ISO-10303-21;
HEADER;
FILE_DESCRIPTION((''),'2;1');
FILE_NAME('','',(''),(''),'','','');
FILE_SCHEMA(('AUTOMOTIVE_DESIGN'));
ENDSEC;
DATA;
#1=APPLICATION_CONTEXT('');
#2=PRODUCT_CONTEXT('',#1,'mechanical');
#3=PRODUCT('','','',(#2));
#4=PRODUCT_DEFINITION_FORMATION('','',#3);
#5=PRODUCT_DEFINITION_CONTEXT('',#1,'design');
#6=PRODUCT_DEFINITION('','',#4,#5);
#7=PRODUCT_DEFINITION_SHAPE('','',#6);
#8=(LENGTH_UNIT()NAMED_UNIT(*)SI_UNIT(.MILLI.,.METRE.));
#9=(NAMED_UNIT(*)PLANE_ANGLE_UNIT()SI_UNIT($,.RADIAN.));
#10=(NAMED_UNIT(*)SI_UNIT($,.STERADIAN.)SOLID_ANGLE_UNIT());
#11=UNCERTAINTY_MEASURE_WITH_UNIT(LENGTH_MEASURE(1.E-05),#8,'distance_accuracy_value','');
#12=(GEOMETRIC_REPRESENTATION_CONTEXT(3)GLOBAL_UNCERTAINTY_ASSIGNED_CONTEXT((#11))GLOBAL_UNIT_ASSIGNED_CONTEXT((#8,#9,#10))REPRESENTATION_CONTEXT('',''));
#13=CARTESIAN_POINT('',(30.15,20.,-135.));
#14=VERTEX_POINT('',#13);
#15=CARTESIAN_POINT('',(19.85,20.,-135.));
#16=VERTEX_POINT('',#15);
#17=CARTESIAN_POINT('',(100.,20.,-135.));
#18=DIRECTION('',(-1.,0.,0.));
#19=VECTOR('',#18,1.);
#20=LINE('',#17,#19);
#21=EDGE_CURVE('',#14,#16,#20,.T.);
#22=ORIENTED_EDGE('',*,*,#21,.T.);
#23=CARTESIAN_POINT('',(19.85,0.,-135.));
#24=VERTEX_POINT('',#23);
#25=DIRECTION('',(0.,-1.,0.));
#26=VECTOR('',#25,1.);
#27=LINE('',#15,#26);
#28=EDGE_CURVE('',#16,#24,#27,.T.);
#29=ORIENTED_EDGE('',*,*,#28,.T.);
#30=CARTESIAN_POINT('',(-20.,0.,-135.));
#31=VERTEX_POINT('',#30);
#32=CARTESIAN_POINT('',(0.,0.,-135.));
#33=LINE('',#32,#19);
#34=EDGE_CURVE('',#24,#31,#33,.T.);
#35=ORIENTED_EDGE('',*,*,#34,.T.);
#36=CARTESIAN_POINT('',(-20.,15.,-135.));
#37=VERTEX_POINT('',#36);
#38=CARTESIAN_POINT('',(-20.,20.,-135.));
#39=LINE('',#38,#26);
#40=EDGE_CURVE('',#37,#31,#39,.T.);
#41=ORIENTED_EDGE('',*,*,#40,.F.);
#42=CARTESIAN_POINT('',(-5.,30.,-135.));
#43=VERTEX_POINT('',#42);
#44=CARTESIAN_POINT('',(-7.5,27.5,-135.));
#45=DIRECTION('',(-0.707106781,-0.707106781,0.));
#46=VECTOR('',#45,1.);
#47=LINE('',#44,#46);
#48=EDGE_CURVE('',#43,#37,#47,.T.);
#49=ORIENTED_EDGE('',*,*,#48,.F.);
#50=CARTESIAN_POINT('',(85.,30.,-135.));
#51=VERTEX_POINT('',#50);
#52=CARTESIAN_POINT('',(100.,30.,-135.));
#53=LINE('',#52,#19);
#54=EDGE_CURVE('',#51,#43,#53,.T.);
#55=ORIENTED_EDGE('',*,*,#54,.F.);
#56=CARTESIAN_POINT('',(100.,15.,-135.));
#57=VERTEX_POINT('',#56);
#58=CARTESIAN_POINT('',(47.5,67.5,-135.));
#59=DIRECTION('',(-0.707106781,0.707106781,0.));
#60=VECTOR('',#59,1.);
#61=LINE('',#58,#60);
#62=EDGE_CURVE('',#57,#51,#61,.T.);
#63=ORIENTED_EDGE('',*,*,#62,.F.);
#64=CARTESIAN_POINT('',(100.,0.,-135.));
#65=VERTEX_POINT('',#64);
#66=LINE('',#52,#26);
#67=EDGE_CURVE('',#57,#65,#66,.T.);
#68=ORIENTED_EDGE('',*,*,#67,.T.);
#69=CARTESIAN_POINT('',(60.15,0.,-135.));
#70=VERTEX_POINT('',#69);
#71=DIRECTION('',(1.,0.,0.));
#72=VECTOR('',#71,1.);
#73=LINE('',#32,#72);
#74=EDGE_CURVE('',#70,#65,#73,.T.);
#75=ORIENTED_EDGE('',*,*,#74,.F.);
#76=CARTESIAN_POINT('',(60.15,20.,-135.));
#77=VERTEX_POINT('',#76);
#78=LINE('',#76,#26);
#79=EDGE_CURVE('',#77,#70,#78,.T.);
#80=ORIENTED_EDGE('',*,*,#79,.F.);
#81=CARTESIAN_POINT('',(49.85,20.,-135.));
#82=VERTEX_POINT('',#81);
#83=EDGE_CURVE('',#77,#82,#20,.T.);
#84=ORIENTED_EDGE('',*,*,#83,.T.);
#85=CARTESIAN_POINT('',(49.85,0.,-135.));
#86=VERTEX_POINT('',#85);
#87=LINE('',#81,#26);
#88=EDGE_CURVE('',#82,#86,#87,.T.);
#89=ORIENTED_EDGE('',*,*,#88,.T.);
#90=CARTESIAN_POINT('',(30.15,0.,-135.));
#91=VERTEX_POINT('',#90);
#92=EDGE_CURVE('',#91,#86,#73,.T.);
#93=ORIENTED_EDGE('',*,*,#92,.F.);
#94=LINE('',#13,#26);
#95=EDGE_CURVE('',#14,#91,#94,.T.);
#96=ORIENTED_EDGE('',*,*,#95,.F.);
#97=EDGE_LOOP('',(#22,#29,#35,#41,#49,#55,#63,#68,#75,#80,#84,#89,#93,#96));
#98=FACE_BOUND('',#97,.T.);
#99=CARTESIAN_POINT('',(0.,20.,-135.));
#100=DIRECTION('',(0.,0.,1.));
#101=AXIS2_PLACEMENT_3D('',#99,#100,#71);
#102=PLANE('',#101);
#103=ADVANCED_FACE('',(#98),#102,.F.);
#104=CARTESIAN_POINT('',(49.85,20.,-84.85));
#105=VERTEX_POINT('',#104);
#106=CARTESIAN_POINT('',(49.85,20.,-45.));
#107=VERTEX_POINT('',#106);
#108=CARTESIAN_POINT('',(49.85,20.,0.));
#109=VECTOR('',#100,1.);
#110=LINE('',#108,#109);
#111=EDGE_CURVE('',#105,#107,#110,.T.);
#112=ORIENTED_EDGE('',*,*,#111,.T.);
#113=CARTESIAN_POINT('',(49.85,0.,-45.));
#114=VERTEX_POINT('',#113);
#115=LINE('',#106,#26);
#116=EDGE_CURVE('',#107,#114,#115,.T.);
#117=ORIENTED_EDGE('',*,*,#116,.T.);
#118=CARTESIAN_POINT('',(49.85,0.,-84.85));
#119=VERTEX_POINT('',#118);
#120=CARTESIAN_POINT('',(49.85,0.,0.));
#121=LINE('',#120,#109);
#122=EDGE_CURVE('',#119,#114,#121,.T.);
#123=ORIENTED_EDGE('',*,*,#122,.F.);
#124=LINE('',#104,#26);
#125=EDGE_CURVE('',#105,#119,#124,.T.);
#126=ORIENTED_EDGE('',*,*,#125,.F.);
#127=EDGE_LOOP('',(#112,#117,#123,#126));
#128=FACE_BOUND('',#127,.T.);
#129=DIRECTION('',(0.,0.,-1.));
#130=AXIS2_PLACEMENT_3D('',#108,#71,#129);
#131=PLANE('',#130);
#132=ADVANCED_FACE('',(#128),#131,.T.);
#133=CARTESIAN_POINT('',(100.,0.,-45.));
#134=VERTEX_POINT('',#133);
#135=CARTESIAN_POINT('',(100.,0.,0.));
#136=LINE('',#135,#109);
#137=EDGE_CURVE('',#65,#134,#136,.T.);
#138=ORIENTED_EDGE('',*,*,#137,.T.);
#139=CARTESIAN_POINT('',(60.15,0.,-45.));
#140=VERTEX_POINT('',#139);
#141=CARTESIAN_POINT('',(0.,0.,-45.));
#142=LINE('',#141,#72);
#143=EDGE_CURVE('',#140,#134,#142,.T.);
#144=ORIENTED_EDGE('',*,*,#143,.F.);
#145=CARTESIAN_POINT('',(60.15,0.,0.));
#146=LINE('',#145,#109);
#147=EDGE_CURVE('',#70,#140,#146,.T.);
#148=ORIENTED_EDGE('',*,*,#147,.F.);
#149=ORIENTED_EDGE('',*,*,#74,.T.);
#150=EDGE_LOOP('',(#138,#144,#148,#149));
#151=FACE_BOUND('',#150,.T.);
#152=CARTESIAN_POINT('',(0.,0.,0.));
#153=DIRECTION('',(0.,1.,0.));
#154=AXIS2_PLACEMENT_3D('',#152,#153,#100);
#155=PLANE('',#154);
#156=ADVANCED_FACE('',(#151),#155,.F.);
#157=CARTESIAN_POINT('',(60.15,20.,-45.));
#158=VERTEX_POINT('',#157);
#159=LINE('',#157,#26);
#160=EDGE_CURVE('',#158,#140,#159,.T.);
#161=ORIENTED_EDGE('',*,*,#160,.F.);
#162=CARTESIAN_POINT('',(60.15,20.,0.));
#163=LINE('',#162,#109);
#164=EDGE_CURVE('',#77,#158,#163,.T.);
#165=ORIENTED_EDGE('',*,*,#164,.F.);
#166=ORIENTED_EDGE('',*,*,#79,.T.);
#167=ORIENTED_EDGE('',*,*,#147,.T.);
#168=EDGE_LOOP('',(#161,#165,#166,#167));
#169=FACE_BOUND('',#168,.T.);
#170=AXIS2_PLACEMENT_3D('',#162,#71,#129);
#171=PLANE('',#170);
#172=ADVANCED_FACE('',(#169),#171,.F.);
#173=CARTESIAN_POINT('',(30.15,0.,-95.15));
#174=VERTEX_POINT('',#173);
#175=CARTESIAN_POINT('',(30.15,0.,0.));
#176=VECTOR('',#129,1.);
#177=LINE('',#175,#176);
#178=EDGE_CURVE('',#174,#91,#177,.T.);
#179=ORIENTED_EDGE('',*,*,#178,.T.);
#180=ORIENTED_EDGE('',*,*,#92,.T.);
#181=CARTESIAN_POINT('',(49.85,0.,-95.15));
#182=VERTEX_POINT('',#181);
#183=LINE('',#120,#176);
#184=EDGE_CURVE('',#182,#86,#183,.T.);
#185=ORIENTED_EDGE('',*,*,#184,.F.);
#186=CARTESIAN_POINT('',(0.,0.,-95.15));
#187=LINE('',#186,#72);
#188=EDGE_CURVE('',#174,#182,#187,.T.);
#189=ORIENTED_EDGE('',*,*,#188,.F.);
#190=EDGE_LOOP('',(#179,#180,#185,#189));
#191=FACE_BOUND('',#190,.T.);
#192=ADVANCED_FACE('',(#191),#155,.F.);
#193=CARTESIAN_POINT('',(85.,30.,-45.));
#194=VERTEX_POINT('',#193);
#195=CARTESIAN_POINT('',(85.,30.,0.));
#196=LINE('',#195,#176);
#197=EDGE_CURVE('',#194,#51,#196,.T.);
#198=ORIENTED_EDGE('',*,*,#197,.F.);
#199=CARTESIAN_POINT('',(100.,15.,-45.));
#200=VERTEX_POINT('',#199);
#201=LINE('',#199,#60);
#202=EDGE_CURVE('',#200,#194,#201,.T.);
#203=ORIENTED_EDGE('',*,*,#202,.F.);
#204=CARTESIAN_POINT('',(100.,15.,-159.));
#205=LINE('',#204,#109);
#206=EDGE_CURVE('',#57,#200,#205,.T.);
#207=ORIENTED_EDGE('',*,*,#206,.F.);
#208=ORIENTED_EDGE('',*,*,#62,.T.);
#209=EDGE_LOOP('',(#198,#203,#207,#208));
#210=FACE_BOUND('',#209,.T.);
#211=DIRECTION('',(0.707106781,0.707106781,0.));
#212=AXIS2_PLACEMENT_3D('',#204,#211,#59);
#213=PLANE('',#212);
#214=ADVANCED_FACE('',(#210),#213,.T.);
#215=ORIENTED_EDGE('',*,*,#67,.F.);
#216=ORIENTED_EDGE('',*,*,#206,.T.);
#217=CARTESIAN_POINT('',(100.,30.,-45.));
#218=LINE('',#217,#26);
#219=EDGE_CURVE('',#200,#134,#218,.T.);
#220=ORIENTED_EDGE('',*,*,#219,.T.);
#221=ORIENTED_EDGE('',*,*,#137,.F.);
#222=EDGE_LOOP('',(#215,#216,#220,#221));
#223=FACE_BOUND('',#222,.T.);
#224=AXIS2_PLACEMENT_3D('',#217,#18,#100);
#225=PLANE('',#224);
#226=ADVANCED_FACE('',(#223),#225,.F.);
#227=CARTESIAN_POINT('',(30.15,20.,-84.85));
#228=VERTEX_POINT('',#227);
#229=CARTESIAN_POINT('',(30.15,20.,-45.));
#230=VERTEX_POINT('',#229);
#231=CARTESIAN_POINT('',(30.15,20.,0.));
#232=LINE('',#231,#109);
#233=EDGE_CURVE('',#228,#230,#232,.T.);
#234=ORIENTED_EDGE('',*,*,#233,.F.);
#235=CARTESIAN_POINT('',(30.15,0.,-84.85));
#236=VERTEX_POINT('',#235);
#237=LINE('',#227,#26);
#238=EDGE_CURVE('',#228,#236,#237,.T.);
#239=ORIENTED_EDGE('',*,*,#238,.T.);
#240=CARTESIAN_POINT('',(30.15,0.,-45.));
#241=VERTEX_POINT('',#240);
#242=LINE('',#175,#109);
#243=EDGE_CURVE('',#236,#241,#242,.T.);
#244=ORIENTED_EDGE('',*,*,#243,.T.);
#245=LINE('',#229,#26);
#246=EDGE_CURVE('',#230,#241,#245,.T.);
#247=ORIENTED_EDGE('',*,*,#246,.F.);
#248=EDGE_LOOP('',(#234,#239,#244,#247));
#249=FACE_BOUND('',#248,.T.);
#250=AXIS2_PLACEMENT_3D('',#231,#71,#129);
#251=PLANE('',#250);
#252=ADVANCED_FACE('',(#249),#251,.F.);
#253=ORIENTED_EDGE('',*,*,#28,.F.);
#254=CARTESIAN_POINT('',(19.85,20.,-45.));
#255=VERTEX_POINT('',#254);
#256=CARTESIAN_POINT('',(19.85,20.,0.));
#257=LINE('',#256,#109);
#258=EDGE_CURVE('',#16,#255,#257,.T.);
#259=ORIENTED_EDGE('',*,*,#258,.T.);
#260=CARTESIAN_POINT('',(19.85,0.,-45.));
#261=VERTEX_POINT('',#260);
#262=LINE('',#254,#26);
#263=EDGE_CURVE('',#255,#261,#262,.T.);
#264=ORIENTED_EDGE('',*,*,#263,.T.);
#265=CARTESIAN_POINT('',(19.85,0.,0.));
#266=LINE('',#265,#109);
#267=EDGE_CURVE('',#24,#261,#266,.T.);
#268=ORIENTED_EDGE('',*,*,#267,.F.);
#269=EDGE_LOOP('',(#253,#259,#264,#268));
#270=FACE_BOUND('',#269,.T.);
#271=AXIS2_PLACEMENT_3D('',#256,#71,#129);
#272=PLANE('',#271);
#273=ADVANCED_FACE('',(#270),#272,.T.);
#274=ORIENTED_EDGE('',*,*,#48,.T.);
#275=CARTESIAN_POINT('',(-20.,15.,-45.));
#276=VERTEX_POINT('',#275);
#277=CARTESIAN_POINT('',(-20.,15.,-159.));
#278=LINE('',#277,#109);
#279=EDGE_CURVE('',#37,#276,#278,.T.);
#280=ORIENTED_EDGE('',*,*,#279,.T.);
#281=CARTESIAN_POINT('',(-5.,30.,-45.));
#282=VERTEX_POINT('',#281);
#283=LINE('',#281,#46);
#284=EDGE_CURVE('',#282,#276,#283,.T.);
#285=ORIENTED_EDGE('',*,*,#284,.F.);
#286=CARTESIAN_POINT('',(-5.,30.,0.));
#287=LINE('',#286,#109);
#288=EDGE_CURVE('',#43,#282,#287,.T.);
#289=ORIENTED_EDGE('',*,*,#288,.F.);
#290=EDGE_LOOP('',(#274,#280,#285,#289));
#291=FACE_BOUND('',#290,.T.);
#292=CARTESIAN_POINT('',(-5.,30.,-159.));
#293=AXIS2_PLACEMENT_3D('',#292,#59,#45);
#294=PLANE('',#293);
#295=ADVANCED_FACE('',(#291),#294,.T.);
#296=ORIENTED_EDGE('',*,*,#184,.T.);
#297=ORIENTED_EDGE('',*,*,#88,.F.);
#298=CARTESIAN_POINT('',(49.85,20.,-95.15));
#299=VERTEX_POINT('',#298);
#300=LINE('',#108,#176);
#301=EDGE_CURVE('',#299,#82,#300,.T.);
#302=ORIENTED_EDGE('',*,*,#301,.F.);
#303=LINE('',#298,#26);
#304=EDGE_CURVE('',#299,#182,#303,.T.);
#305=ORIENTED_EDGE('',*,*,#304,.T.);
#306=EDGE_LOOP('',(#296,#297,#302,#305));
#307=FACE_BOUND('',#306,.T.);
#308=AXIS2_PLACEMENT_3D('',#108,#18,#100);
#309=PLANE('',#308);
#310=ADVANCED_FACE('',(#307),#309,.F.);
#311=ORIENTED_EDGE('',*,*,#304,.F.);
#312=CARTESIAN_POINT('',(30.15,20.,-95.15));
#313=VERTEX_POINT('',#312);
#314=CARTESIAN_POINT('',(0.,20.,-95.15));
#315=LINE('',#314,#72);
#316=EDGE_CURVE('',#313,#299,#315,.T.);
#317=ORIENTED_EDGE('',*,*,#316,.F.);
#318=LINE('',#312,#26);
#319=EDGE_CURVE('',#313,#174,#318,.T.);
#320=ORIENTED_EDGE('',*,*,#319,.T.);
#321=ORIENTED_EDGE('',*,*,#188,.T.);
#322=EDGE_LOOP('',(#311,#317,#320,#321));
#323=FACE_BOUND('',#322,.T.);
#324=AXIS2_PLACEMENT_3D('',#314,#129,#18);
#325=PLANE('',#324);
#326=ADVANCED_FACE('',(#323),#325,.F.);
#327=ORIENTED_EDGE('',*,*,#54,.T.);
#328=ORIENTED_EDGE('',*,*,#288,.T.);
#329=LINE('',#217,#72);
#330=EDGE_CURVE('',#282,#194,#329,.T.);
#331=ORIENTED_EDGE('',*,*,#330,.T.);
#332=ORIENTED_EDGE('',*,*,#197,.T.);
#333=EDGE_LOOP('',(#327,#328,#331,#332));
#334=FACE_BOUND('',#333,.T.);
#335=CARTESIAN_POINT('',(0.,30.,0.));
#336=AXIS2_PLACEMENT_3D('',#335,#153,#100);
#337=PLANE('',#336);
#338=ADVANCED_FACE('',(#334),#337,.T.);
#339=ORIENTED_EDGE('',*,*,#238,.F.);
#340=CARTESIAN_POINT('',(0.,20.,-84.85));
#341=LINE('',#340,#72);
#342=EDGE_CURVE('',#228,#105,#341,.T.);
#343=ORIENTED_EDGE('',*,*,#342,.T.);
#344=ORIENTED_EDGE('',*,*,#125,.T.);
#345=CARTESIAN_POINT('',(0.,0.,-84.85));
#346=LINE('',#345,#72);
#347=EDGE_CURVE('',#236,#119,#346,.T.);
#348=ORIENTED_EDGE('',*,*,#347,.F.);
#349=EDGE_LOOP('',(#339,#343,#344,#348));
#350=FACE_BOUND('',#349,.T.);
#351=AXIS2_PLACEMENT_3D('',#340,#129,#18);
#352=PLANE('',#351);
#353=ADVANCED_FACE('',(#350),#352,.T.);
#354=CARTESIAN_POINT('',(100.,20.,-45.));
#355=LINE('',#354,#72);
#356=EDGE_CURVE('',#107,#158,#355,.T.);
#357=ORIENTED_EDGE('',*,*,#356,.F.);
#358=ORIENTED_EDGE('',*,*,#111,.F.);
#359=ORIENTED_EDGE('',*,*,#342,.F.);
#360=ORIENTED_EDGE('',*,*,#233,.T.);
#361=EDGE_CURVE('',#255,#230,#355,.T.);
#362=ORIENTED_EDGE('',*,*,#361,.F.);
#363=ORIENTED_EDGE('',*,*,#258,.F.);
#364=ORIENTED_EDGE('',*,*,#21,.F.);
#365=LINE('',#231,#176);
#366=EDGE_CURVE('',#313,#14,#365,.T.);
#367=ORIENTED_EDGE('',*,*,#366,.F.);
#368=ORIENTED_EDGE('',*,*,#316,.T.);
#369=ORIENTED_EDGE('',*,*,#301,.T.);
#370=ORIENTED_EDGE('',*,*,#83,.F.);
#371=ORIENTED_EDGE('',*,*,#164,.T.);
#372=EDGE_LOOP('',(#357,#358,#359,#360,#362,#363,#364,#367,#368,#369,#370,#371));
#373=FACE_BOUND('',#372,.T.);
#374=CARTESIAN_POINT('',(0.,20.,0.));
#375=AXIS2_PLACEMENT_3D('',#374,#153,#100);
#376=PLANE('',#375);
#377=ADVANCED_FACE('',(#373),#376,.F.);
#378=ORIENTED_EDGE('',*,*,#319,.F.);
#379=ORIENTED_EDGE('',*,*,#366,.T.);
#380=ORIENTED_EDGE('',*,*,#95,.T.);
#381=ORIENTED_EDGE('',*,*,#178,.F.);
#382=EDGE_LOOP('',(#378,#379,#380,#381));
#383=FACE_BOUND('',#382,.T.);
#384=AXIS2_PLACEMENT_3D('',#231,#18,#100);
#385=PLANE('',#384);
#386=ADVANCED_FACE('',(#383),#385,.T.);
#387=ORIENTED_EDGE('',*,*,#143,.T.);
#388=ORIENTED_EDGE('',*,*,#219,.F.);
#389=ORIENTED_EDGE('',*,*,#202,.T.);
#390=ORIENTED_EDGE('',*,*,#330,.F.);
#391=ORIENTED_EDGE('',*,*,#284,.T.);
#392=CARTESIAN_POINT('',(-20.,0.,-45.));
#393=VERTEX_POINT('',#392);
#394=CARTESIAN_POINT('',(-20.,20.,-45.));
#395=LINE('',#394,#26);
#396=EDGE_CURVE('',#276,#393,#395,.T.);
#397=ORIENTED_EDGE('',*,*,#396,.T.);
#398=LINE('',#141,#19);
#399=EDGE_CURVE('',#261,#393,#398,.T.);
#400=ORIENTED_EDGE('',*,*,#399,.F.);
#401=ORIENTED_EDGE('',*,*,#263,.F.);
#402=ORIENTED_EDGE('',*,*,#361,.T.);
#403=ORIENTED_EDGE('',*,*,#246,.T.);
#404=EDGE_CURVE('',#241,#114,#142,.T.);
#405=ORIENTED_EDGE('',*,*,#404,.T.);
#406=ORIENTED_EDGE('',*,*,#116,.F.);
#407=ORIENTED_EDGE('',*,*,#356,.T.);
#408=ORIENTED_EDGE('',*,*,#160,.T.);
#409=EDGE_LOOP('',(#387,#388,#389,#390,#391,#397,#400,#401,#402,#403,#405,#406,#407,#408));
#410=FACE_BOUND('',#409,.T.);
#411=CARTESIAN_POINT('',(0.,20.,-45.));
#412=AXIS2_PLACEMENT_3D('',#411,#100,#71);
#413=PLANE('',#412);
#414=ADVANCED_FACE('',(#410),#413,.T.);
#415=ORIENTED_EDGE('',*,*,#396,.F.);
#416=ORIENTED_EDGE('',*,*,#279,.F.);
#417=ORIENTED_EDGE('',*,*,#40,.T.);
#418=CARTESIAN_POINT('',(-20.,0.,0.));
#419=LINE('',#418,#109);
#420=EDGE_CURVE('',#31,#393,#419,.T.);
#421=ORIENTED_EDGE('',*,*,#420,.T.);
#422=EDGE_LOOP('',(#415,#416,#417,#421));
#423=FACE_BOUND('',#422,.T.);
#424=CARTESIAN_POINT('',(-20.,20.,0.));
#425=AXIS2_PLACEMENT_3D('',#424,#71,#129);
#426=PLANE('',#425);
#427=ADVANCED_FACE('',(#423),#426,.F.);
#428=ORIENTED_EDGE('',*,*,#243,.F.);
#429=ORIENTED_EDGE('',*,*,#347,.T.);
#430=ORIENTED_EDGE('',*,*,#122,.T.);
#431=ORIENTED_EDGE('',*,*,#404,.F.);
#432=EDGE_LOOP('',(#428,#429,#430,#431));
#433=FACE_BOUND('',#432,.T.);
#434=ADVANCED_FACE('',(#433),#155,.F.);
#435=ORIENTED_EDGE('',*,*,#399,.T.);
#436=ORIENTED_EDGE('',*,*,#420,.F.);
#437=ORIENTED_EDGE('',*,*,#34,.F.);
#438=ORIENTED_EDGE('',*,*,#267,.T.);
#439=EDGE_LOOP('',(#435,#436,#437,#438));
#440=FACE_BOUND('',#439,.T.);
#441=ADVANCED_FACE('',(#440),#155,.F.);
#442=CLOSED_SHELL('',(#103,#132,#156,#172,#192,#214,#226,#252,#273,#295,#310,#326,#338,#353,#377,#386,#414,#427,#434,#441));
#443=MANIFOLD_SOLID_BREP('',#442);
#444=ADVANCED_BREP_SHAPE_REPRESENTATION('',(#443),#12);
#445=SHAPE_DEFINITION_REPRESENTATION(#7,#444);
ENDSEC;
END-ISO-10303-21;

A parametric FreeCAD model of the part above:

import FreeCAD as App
import Part
import Sketcher
from FreeCAD import Vector


def add_polygon(sketch, points):
    """Adds a closed chain of lines whose ends are joined by coincident constraints."""
    first, n = sketch.GeometryCount, len(points)
    for a, b in zip(points, points[1:] + points[:1]):
        sketch.addGeometry(Part.LineSegment(App.Vector(*a, 0), App.Vector(*b, 0)), False)
    for i in range(n):
        sketch.addConstraint(Sketcher.Constraint("Coincident", first + i, 2, first + (i + 1) % n, 1))

doc = App.newDocument("Part")
body = doc.addObject("PartDesign::Body", "Body")

sketch1 = doc.addObject("Sketcher::SketchObject", "Sketch")
body.addObject(sketch1)
sketch1.AttachmentSupport = (doc.XZ_Plane, [""])
sketch1.MapMode = "FlatFace"
add_polygon(sketch1, [(-20, -135), (-20, -45), (20, -45), (20, -135)])
sketch1.addConstraint([
    Sketcher.Constraint("Vertical", 0),
    Sketcher.Constraint("Horizontal", 1),
    Sketcher.Constraint("Vertical", 2),
    Sketcher.Constraint("Horizontal", 3),
    Sketcher.Constraint("DistanceY", 0, 1, 0, 2, 90.0),
    Sketcher.Constraint("DistanceX", 0, 2, -1, 1, 20.0),
    Sketcher.Constraint("DistanceY", 0, 2, -1, 1, 45.0),
    Sketcher.Constraint("DistanceX", 1, 1, 1, 2, 39.85),
])
pad1 = doc.addObject("PartDesign::Pad", "Pad")
body.addObject(pad1)
pad1.Profile = sketch1
pad1.Length = 20
pad1.Reversed = True
body2 = doc.addObject("PartDesign::Body", "Body001")

sketch2 = doc.addObject("Sketcher::SketchObject", "Sketch001")
body2.addObject(sketch2)
sketch2.AttachmentSupport = (doc.getObject("XZ_Plane001"), [""])
sketch2.MapMode = "FlatFace"
add_polygon(sketch2, [(50, -95), (50, -135), (30, -135), (30, -95)])
sketch2.addConstraint([
    Sketcher.Constraint("Vertical", 0),
    Sketcher.Constraint("Horizontal", 1),
    Sketcher.Constraint("Vertical", 2),
    Sketcher.Constraint("Horizontal", 3),
    Sketcher.Constraint("DistanceX", 1, 2, 1, 1, 19.7),
    Sketcher.Constraint("DistanceY", 0, 2, -1, 1, 135.0),
    Sketcher.Constraint("DistanceY", 0, 2, 0, 1, 39.85),
    Sketcher.Constraint("DistanceX", -1, 1, 0, 2, 49.85),
])
pad2 = doc.addObject("PartDesign::Pad", "Pad001")
body2.addObject(pad2)
pad2.Profile = sketch2
pad2.Length = 20
pad2.Reversed = True
body3 = doc.addObject("PartDesign::Body", "Body002")

sketch3 = doc.addObject("Sketcher::SketchObject", "Sketch002")
body3.addObject(sketch3)
sketch3.AttachmentSupport = (doc.getObject("XZ_Plane002"), [""])
sketch3.MapMode = "FlatFace"
add_polygon(sketch3, [(50, -45), (50, -85), (30, -85), (30, -45)])
sketch3.addConstraint([
    Sketcher.Constraint("Vertical", 0),
    Sketcher.Constraint("Horizontal", 1),
    Sketcher.Constraint("Vertical", 2),
    Sketcher.Constraint("Horizontal", 3),
    Sketcher.Constraint("DistanceX", 1, 2, 1, 1, 19.7),
    Sketcher.Constraint("DistanceY", 2, 2, -1, 1, 45.0),
    Sketcher.Constraint("DistanceY", 0, 2, 0, 1, 39.85),
    Sketcher.Constraint("DistanceX", -1, 1, 0, 2, 49.85),
])
pad3 = doc.addObject("PartDesign::Pad", "Pad002")
body3.addObject(pad3)
pad3.Profile = sketch3
pad3.Length = 20
pad3.Reversed = True
body4 = doc.addObject("PartDesign::Body", "Body003")

sketch4 = doc.addObject("Sketcher::SketchObject", "Sketch003")
body4.addObject(sketch4)
sketch4.AttachmentSupport = (doc.getObject("XZ_Plane003"), [""])
sketch4.MapMode = "FlatFace"
add_polygon(sketch4, [(60, -135), (60, -45), (100, -45), (100, -135)])
sketch4.addConstraint([
    Sketcher.Constraint("Vertical", 0),
    Sketcher.Constraint("Horizontal", 1),
    Sketcher.Constraint("Vertical", 2),
    Sketcher.Constraint("Horizontal", 3),
    Sketcher.Constraint("DistanceY", 0, 1, 0, 2, 90.0),
    Sketcher.Constraint("DistanceY", 0, 2, -1, 1, 45.0),
    Sketcher.Constraint("DistanceX", -1, 1, 1, 2, 100.0),
    Sketcher.Constraint("DistanceX", 1, 1, 1, 2, 39.85),
])
pad4 = doc.addObject("PartDesign::Pad", "Pad003")
body4.addObject(pad4)
pad4.Profile = sketch4
pad4.Length = 20
pad4.Reversed = True
body.AllowCompound = True
doc.recompute()

boolean = doc.addObject("PartDesign::Boolean", "Boolean")
body.addObject(boolean)
boolean.Type = "Fuse"
boolean.addObjects([body2])
doc.recompute()

boolean2 = doc.addObject("PartDesign::Boolean", "Boolean001")
body.addObject(boolean2)
boolean2.Type = "Fuse"
boolean2.addObjects([body3])
doc.recompute()

boolean3 = doc.addObject("PartDesign::Boolean", "Boolean002")
body.addObject(boolean3)
boolean3.Type = "Fuse"
boolean3.addObjects([body4])

sketch5 = doc.addObject("Sketcher::SketchObject", "Sketch004")
body.addObject(sketch5)
sketch5.AttachmentSupport = (doc.XZ_Plane, [""])
sketch5.MapMode = "FlatFace"
sketch5.AttachmentOffset = App.Placement(Vector(0, 0, -20), App.Rotation())
add_polygon(sketch5, [(-20, -135), (-20, -45), (100, -45), (100, -135)])
sketch5.addConstraint([
    Sketcher.Constraint("Vertical", 0),
    Sketcher.Constraint("Horizontal", 1),
    Sketcher.Constraint("Vertical", 2),
    Sketcher.Constraint("Horizontal", 3),
    Sketcher.Constraint("DistanceX", 1, 1, 1, 2, 120.0),
    Sketcher.Constraint("DistanceY", 0, 1, 0, 2, 90.0),
    Sketcher.Constraint("DistanceX", 0, 2, -1, 1, 20.0),
    Sketcher.Constraint("DistanceY", 0, 2, -1, 1, 45.0),
])
pad5 = doc.addObject("PartDesign::Pad", "Pad004")
body.addObject(pad5)
pad5.Profile = sketch5
pad5.Length = 10
pad5.Reversed = True

sketch6 = doc.addObject("Sketcher::SketchObject", "Sketch005")
body.addObject(sketch6)
sketch6.AttachmentSupport = (doc.XY_Plane, [""])
sketch6.MapMode = "FlatFace"
sketch6.AttachmentOffset = App.Placement(Vector(0, 0, -45), App.Rotation())
add_polygon(sketch6, [(-20, 30), (-20, 15), (-5, 30)])
add_polygon(sketch6, [(100, 30), (85, 30), (100, 15)])
sketch6.addConstraint([
    Sketcher.Constraint("Vertical", 0),
    Sketcher.Constraint("Horizontal", 2),
    Sketcher.Constraint("Horizontal", 3),
    Sketcher.Constraint("Vertical", 5),
    Sketcher.Constraint("Perpendicular", 1, 4),
    Sketcher.Constraint("Horizontal", 2, 2, 3, 2),
    Sketcher.Constraint("Horizontal", 0, 2, 4, 2),
    Sketcher.Constraint("Equal", 2, 3),
    Sketcher.Constraint("DistanceX", 2, 2, 2, 1, 15.0),
    Sketcher.Constraint("DistanceX", 0, 2, -1, 1, 20.0),
    Sketcher.Constraint("DistanceY", -1, 1, 0, 2, 15.0),
    Sketcher.Constraint("DistanceX", -1, 1, 3, 2, 85.0),
])
pocket1 = doc.addObject("PartDesign::Pocket", "Pocket")
body.addObject(pocket1)
pocket1.Profile = sketch6
pocket1.Length = 114

doc.recompute()
